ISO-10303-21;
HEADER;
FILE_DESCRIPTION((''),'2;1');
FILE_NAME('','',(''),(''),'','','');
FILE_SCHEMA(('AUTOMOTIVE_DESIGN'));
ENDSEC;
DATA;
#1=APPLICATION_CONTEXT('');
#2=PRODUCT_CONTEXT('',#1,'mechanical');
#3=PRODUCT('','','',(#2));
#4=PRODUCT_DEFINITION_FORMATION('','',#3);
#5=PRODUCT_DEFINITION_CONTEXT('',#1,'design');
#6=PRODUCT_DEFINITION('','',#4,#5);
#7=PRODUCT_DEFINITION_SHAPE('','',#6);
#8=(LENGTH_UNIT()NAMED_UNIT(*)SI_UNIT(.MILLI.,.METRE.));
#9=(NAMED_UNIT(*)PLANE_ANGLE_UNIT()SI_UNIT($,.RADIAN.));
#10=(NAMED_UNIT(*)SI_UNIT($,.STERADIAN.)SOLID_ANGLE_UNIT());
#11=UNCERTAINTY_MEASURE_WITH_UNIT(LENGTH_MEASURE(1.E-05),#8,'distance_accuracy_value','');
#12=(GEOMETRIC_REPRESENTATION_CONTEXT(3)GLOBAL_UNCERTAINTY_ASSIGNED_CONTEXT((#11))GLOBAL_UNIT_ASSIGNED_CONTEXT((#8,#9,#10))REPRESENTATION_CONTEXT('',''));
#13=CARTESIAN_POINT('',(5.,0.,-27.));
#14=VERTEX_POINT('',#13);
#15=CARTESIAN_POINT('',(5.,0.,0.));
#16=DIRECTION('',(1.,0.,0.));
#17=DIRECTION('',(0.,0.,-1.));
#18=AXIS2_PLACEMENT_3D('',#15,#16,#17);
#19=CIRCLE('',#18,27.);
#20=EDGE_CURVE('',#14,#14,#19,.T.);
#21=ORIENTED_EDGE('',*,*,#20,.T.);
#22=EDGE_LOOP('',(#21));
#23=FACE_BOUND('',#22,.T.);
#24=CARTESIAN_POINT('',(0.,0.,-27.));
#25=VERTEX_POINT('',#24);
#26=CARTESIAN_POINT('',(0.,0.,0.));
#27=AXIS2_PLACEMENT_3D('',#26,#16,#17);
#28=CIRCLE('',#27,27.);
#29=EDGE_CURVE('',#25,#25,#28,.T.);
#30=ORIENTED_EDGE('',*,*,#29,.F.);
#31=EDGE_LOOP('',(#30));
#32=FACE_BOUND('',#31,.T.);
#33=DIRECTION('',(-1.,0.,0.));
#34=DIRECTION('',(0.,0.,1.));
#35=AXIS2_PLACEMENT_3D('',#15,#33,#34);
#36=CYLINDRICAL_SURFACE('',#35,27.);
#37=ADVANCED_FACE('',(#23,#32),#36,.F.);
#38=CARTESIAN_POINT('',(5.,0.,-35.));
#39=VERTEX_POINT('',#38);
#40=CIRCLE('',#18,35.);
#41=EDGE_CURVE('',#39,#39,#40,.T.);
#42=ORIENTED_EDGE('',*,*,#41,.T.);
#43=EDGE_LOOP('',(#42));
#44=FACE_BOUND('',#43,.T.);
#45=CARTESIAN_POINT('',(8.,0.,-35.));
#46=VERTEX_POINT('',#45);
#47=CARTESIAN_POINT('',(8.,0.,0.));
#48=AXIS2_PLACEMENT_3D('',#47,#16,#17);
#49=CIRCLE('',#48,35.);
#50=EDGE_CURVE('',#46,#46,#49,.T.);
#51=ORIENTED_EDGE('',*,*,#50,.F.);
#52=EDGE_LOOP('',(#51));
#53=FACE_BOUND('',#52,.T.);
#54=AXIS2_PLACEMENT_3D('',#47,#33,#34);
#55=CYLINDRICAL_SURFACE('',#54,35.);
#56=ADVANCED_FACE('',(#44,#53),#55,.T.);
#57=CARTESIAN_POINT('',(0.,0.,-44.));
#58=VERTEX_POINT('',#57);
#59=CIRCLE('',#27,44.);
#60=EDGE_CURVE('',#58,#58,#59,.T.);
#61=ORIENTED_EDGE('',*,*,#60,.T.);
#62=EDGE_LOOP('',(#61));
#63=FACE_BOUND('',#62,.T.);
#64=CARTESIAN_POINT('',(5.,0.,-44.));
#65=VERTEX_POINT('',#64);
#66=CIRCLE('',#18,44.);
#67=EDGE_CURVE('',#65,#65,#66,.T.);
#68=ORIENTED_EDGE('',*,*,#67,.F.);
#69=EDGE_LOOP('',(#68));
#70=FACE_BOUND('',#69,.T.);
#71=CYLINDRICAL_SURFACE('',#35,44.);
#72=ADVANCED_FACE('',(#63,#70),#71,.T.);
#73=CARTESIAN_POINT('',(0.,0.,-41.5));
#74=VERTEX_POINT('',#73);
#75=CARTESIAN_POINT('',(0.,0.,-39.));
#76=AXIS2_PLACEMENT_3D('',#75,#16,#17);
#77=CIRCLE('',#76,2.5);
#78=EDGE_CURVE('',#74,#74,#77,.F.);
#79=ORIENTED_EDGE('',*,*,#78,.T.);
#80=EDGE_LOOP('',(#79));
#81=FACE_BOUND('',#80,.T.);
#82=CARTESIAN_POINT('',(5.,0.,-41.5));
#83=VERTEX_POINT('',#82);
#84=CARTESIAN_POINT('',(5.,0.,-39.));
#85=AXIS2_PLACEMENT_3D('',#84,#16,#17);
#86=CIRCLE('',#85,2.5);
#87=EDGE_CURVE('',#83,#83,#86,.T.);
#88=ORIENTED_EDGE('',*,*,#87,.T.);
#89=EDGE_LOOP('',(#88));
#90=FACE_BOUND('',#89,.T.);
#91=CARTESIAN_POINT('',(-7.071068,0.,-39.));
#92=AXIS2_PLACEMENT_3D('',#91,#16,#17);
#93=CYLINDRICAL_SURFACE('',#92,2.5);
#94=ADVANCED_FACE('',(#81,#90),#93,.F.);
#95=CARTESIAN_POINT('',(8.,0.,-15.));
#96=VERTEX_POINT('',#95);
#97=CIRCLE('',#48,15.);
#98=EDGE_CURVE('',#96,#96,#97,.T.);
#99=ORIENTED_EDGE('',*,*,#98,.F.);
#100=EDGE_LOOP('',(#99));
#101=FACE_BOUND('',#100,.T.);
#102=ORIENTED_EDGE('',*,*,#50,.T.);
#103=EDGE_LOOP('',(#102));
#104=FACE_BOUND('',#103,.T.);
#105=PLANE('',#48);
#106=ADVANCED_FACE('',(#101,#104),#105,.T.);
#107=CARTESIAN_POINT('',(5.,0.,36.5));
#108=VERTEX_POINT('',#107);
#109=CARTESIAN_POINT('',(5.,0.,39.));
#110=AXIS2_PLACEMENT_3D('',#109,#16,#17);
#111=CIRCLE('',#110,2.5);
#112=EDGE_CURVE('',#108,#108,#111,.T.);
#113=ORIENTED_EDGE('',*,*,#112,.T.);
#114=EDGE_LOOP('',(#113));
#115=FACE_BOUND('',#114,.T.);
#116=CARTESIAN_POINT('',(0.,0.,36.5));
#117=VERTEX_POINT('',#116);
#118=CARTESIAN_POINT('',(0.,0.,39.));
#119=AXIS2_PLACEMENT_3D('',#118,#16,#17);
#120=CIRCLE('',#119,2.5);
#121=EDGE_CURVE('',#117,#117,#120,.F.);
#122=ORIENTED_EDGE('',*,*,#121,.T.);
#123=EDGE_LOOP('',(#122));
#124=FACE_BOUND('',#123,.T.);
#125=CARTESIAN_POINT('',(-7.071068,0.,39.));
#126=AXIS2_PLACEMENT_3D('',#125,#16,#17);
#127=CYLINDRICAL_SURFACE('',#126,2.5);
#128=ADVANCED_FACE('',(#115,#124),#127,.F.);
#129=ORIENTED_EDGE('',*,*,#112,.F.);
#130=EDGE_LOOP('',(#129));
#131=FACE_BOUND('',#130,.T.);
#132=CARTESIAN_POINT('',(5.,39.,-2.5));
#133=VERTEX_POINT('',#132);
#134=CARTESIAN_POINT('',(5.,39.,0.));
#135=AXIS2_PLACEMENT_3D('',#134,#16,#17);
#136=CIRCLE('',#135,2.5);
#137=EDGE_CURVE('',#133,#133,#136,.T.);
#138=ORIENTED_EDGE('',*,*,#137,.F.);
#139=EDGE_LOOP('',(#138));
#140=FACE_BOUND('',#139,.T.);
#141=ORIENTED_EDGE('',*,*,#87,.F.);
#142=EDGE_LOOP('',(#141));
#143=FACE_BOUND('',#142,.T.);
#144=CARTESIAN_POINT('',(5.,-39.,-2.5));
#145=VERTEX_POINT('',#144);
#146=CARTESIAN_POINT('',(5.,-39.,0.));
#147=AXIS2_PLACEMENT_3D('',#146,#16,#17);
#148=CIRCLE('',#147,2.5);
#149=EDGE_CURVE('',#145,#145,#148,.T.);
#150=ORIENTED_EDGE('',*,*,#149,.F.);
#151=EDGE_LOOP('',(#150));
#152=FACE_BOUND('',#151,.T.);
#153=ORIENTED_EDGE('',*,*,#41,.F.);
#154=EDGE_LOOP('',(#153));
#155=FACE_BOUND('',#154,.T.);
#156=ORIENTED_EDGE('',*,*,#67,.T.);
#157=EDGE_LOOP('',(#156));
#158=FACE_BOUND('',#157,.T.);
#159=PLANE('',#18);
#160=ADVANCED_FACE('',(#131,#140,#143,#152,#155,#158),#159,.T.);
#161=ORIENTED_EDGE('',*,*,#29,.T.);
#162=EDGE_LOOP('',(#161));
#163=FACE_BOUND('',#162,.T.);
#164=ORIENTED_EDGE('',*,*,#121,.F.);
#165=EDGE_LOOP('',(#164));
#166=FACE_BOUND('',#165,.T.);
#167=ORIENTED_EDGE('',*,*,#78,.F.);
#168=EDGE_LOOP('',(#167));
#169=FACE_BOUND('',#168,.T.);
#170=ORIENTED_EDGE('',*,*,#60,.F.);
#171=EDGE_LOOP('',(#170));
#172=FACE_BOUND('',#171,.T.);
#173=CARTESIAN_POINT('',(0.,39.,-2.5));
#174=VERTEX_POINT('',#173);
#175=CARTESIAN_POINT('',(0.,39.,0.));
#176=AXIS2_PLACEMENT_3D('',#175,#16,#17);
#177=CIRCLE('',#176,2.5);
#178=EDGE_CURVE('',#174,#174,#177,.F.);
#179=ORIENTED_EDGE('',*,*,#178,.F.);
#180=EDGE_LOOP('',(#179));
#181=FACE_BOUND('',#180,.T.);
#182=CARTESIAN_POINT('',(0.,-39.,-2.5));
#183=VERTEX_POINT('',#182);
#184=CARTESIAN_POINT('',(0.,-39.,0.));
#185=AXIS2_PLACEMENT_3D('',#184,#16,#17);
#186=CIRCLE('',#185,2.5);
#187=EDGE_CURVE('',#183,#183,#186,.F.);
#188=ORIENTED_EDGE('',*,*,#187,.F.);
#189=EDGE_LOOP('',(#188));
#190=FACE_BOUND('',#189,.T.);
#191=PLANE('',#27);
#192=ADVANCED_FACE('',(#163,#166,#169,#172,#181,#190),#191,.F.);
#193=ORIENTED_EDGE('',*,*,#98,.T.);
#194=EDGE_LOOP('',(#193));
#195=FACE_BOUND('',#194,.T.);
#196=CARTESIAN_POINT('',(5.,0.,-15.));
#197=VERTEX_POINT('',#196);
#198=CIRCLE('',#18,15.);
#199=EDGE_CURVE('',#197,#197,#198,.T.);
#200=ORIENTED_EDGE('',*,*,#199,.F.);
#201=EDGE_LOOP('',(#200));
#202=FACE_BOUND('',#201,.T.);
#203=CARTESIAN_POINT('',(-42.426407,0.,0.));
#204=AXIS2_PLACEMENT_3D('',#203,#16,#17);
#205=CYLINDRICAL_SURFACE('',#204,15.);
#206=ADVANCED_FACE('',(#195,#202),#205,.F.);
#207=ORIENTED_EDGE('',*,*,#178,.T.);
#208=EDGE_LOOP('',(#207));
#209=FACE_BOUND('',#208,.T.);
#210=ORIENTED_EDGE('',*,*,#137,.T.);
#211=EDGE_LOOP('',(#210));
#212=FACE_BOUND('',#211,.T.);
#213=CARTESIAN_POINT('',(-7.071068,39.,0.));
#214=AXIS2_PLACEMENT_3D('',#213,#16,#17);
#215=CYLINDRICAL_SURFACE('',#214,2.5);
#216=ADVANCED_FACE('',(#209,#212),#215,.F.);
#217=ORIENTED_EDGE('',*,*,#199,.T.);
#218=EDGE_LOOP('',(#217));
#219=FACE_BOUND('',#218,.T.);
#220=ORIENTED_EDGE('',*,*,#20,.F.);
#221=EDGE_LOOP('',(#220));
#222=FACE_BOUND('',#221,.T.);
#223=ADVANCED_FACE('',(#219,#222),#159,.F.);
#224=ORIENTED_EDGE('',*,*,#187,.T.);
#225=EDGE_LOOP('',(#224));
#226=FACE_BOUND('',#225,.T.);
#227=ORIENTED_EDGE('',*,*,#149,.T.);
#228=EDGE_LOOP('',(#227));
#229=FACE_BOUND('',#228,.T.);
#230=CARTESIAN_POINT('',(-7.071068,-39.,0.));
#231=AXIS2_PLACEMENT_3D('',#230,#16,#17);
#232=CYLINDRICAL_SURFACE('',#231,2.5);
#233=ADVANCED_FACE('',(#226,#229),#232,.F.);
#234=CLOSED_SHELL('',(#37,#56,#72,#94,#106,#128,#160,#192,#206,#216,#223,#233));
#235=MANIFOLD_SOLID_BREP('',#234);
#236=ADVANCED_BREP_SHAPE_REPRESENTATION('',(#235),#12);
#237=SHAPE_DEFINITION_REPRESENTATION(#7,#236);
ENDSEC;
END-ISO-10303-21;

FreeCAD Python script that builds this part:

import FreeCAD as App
import Part
import Sketcher
from FreeCAD import Vector
Q = App.Units.Quantity

doc = App.newDocument("Part")
body = doc.addObject("PartDesign::Body", "Body")

# Sketch on YZ plane
sketch1 = doc.addObject("Sketcher::SketchObject", "Sketch")
body.addObject(sketch1)
sketch1.AttachmentSupport = (doc.YZ_Plane, [""])
sketch1.MapMode = "FlatFace"
sketch1.addGeometry(Part.Circle(Vector(0, 0, 0), Vector(0, 0, 1), 44), False)
sketch1.addGeometry(Part.Circle(Vector(0, 0, 0), Vector(0, 0, 1), 27), False)
sketch1.addConstraint(Sketcher.Constraint("Coincident", 0, 3, -1, 1))
sketch1.addConstraint(Sketcher.Constraint("Coincident", 1, 3, -1, 1))
sketch1.addConstraint(Sketcher.Constraint("Diameter", 0, Q("88 mm")))
sketch1.addConstraint(Sketcher.Constraint("Diameter", 1, Q("54 mm")))
pad1 = doc.addObject("PartDesign::Pad", "Pad")
body.addObject(pad1)
pad1.Profile = sketch1
pad1.Length = 5

# Sketch on YZ plane
sketch2 = doc.addObject("Sketcher::SketchObject", "Sketch001")
body.addObject(sketch2)
sketch2.AttachmentSupport = (doc.YZ_Plane, [""])
sketch2.MapMode = "FlatFace"
sketch2.AttachmentOffset = App.Placement(Vector(0, 0, 5), App.Rotation())
sketch2.addGeometry(Part.Circle(Vector(0, 0, 0), Vector(0, 0, 1), 35), False)
sketch2.addConstraint(Sketcher.Constraint("Coincident", 0, 3, -1, 1))
sketch2.addConstraint(Sketcher.Constraint("Diameter", 0, Q("70 mm")))
pad2 = doc.addObject("PartDesign::Pad", "Pad001")
body.addObject(pad2)
pad2.Profile = sketch2
pad2.Length = 3

# Sketch on YZ plane
sketch3 = doc.addObject("Sketcher::SketchObject", "Sketch002")
body.addObject(sketch3)
sketch3.AttachmentSupport = (doc.YZ_Plane, [""])
sketch3.MapMode = "FlatFace"
sketch3.AttachmentOffset = App.Placement(Vector(0, 0, 5), App.Rotation())
sketch3.addGeometry(Part.Circle(Vector(39, 0, 0), Vector(0, 0, 1), 2.5), False)
sketch3.addGeometry(Part.Circle(Vector(0, -39, 0), Vector(0, 0, 1), 2.5), False)
sketch3.addGeometry(Part.Circle(Vector(-39, 0, 0), Vector(0, 0, 1), 2.5), False)
sketch3.addGeometry(Part.Circle(Vector(0, 39, 0), Vector(0, 0, 1), 2.5), False)
sketch3.addConstraint(Sketcher.Constraint("Equal", 0, 1))
sketch3.addConstraint(Sketcher.Constraint("Equal", 1, 2))
sketch3.addConstraint(Sketcher.Constraint("Equal", 2, 3))
sketch3.addConstraint(Sketcher.Constraint("Symmetric", 0, 3, 2, 3, -1, 1))
sketch3.addConstraint(Sketcher.Constraint("Symmetric", 1, 3, 3, 3, -1, 1))
sketch3.addConstraint(Sketcher.Constraint("PointOnObject", 0, 3, -1))
sketch3.addConstraint(Sketcher.Constraint("PointOnObject", 1, 3, -2))
sketch3.addConstraint(Sketcher.Constraint("Diameter", 0, Q("5 mm")))
sketch3.addConstraint(Sketcher.Constraint("DistanceX", -1, 1, 0, 3, Q("39 mm")))
sketch3.addConstraint(Sketcher.Constraint("DistanceY", 1, 3, -1, 1, Q("39 mm")))
pocket1 = doc.addObject("PartDesign::Pocket", "Pocket")
body.addObject(pocket1)
pocket1.Profile = sketch3
pocket1.Length = 5

# Sketch on YZ plane
sketch4 = doc.addObject("Sketcher::SketchObject", "Sketch003")
body.addObject(sketch4)
sketch4.AttachmentSupport = (doc.YZ_Plane, [""])
sketch4.MapMode = "FlatFace"
sketch4.AttachmentOffset = App.Placement(Vector(0, 0, 8), App.Rotation())
sketch4.addGeometry(Part.Circle(Vector(0, 0, 0), Vector(0, 0, 1), 15), False)
sketch4.addConstraint(Sketcher.Constraint("Coincident", 0, 3, -1, 1))
sketch4.addConstraint(Sketcher.Constraint("Diameter", 0, Q("30 mm")))
pocket2 = doc.addObject("PartDesign::Pocket", "Pocket001")
body.addObject(pocket2)
pocket2.Profile = sketch4
pocket2.Length = 8

doc.recompute()
